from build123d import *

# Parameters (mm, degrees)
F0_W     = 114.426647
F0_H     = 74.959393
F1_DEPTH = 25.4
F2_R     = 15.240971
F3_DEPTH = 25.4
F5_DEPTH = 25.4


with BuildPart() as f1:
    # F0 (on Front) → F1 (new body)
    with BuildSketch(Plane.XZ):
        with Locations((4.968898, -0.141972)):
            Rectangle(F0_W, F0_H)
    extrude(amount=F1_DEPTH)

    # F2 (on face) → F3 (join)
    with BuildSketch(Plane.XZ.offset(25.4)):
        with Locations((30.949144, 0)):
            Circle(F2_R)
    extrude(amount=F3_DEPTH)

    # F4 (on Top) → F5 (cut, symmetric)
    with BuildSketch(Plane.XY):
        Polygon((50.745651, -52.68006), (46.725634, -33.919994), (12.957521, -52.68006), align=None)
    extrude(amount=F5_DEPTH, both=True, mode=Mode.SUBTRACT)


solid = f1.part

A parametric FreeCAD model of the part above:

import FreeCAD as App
import Part
import Sketcher
from FreeCAD import Vector
Q = App.Units.Quantity


def add_polygon(sketch, points):
    """Adds a closed chain of lines whose ends are joined by coincident constraints."""
    first, n = sketch.GeometryCount, len(points)
    for a, b in zip(points, points[1:] + points[:1]):
        sketch.addGeometry(Part.LineSegment(App.Vector(*a, 0), App.Vector(*b, 0)), False)
    for i in range(n):
        sketch.addConstraint(Sketcher.Constraint("Coincident", first + i, 2, first + (i + 1) % n, 1))

doc = App.newDocument("Part")
params = doc.addObject("Spreadsheet::Sheet", "Params")
for row, (alias, value) in enumerate([
    ("pad1_length", "1 in"),
    ("pad2_length", "1 in"),
    ("pocket1_length", "2 in"),
], start=1):
    params.set(f"A{row}", alias)
    params.set(f"B{row}", "=" + value)
    params.setAlias(f"B{row}", alias)

body = doc.addObject("PartDesign::Body", "Body")

sketch1 = body.newObject("Sketcher::SketchObject", "Sketch")
sketch1.AttachmentSupport = (doc.getObject("XZ_Plane"), [""])
sketch1.MapMode = "FlatFace"
add_polygon(sketch1, [(-52, 37), (-52, -38), (62, -38), (62, 37)])
sketch1.addConstraint(Sketcher.Constraint("Vertical", 0))
sketch1.addConstraint(Sketcher.Constraint("Horizontal", 1))
sketch1.addConstraint(Sketcher.Constraint("Vertical", 2))
sketch1.addConstraint(Sketcher.Constraint("Horizontal", 3))
sketch1.addConstraint(Sketcher.Constraint("DistanceX", 1, 1, 1, 2, Q("114.426647 mm")))
sketch1.addConstraint(Sketcher.Constraint("DistanceY", 0, 2, 0, 1, Q("74.959393 mm")))
sketch1.addConstraint(Sketcher.Constraint("DistanceY", 0, 2, -1, 1, Q("37.621668 mm")))
sketch1.addConstraint(Sketcher.Constraint("DistanceX", -1, 1, 1, 2, Q("62.182221 mm")))
pad1 = body.newObject("PartDesign::Pad", "Pad")
pad1.Profile = sketch1
pad1.setExpression("Length", "Params.pad1_length")

sketch2 = body.newObject("Sketcher::SketchObject", "Sketch001")
sketch2.AttachmentSupport = (doc.getObject("XZ_Plane"), [""])
sketch2.MapMode = "FlatFace"
sketch2.AttachmentOffset = App.Placement(Vector(0, 0, 1 * 25.4), App.Rotation())
sketch2.addGeometry(Part.Circle(Vector(31, 0, 0), Vector(0, 0, 1), 15), False)
sketch2.addConstraint(Sketcher.Constraint("PointOnObject", 0, 3, -1))
sketch2.addConstraint(Sketcher.Constraint("Diameter", 0, Q("30.481942 mm")))
sketch2.addConstraint(Sketcher.Constraint("DistanceX", -1, 1, 0, 3, Q("30.949144 mm")))
pad2 = body.newObject("PartDesign::Pad", "Pad001")
pad2.Profile = sketch2
pad2.setExpression("Length", "Params.pad2_length")

sketch3 = body.newObject("Sketcher::SketchObject", "Sketch002")
sketch3.AttachmentSupport = (doc.getObject("XY_Plane"), [""])
sketch3.MapMode = "FlatFace"
add_polygon(sketch3, [(51, -53), (47, -34), (13, -53)])
sketch3.addConstraint(Sketcher.Constraint("Horizontal", 2))
sketch3.addConstraint(Sketcher.Constraint("DistanceX", 2, 1, 2, 2, Q("37.78813 mm")))
sketch3.addConstraint(Sketcher.Constraint("Distance", 0, Q("19.185948 mm")))
sketch3.addConstraint(Sketcher.Constraint("DistanceX", -1, 1, 1, 2, Q("12.957521 mm")))
sketch3.addConstraint(Sketcher.Constraint("DistanceY", 1, 2, -1, 1, Q("52.68006 mm")))
sketch3.addConstraint(Sketcher.Constraint("Distance", 1, Q("38.629335 mm")))
pocket1 = body.newObject("PartDesign::Pocket", "Pocket")
pocket1.Profile = sketch3
pocket1.setExpression("Length", "Params.pocket1_length")
pocket1.Midplane = True

doc.recompute()
